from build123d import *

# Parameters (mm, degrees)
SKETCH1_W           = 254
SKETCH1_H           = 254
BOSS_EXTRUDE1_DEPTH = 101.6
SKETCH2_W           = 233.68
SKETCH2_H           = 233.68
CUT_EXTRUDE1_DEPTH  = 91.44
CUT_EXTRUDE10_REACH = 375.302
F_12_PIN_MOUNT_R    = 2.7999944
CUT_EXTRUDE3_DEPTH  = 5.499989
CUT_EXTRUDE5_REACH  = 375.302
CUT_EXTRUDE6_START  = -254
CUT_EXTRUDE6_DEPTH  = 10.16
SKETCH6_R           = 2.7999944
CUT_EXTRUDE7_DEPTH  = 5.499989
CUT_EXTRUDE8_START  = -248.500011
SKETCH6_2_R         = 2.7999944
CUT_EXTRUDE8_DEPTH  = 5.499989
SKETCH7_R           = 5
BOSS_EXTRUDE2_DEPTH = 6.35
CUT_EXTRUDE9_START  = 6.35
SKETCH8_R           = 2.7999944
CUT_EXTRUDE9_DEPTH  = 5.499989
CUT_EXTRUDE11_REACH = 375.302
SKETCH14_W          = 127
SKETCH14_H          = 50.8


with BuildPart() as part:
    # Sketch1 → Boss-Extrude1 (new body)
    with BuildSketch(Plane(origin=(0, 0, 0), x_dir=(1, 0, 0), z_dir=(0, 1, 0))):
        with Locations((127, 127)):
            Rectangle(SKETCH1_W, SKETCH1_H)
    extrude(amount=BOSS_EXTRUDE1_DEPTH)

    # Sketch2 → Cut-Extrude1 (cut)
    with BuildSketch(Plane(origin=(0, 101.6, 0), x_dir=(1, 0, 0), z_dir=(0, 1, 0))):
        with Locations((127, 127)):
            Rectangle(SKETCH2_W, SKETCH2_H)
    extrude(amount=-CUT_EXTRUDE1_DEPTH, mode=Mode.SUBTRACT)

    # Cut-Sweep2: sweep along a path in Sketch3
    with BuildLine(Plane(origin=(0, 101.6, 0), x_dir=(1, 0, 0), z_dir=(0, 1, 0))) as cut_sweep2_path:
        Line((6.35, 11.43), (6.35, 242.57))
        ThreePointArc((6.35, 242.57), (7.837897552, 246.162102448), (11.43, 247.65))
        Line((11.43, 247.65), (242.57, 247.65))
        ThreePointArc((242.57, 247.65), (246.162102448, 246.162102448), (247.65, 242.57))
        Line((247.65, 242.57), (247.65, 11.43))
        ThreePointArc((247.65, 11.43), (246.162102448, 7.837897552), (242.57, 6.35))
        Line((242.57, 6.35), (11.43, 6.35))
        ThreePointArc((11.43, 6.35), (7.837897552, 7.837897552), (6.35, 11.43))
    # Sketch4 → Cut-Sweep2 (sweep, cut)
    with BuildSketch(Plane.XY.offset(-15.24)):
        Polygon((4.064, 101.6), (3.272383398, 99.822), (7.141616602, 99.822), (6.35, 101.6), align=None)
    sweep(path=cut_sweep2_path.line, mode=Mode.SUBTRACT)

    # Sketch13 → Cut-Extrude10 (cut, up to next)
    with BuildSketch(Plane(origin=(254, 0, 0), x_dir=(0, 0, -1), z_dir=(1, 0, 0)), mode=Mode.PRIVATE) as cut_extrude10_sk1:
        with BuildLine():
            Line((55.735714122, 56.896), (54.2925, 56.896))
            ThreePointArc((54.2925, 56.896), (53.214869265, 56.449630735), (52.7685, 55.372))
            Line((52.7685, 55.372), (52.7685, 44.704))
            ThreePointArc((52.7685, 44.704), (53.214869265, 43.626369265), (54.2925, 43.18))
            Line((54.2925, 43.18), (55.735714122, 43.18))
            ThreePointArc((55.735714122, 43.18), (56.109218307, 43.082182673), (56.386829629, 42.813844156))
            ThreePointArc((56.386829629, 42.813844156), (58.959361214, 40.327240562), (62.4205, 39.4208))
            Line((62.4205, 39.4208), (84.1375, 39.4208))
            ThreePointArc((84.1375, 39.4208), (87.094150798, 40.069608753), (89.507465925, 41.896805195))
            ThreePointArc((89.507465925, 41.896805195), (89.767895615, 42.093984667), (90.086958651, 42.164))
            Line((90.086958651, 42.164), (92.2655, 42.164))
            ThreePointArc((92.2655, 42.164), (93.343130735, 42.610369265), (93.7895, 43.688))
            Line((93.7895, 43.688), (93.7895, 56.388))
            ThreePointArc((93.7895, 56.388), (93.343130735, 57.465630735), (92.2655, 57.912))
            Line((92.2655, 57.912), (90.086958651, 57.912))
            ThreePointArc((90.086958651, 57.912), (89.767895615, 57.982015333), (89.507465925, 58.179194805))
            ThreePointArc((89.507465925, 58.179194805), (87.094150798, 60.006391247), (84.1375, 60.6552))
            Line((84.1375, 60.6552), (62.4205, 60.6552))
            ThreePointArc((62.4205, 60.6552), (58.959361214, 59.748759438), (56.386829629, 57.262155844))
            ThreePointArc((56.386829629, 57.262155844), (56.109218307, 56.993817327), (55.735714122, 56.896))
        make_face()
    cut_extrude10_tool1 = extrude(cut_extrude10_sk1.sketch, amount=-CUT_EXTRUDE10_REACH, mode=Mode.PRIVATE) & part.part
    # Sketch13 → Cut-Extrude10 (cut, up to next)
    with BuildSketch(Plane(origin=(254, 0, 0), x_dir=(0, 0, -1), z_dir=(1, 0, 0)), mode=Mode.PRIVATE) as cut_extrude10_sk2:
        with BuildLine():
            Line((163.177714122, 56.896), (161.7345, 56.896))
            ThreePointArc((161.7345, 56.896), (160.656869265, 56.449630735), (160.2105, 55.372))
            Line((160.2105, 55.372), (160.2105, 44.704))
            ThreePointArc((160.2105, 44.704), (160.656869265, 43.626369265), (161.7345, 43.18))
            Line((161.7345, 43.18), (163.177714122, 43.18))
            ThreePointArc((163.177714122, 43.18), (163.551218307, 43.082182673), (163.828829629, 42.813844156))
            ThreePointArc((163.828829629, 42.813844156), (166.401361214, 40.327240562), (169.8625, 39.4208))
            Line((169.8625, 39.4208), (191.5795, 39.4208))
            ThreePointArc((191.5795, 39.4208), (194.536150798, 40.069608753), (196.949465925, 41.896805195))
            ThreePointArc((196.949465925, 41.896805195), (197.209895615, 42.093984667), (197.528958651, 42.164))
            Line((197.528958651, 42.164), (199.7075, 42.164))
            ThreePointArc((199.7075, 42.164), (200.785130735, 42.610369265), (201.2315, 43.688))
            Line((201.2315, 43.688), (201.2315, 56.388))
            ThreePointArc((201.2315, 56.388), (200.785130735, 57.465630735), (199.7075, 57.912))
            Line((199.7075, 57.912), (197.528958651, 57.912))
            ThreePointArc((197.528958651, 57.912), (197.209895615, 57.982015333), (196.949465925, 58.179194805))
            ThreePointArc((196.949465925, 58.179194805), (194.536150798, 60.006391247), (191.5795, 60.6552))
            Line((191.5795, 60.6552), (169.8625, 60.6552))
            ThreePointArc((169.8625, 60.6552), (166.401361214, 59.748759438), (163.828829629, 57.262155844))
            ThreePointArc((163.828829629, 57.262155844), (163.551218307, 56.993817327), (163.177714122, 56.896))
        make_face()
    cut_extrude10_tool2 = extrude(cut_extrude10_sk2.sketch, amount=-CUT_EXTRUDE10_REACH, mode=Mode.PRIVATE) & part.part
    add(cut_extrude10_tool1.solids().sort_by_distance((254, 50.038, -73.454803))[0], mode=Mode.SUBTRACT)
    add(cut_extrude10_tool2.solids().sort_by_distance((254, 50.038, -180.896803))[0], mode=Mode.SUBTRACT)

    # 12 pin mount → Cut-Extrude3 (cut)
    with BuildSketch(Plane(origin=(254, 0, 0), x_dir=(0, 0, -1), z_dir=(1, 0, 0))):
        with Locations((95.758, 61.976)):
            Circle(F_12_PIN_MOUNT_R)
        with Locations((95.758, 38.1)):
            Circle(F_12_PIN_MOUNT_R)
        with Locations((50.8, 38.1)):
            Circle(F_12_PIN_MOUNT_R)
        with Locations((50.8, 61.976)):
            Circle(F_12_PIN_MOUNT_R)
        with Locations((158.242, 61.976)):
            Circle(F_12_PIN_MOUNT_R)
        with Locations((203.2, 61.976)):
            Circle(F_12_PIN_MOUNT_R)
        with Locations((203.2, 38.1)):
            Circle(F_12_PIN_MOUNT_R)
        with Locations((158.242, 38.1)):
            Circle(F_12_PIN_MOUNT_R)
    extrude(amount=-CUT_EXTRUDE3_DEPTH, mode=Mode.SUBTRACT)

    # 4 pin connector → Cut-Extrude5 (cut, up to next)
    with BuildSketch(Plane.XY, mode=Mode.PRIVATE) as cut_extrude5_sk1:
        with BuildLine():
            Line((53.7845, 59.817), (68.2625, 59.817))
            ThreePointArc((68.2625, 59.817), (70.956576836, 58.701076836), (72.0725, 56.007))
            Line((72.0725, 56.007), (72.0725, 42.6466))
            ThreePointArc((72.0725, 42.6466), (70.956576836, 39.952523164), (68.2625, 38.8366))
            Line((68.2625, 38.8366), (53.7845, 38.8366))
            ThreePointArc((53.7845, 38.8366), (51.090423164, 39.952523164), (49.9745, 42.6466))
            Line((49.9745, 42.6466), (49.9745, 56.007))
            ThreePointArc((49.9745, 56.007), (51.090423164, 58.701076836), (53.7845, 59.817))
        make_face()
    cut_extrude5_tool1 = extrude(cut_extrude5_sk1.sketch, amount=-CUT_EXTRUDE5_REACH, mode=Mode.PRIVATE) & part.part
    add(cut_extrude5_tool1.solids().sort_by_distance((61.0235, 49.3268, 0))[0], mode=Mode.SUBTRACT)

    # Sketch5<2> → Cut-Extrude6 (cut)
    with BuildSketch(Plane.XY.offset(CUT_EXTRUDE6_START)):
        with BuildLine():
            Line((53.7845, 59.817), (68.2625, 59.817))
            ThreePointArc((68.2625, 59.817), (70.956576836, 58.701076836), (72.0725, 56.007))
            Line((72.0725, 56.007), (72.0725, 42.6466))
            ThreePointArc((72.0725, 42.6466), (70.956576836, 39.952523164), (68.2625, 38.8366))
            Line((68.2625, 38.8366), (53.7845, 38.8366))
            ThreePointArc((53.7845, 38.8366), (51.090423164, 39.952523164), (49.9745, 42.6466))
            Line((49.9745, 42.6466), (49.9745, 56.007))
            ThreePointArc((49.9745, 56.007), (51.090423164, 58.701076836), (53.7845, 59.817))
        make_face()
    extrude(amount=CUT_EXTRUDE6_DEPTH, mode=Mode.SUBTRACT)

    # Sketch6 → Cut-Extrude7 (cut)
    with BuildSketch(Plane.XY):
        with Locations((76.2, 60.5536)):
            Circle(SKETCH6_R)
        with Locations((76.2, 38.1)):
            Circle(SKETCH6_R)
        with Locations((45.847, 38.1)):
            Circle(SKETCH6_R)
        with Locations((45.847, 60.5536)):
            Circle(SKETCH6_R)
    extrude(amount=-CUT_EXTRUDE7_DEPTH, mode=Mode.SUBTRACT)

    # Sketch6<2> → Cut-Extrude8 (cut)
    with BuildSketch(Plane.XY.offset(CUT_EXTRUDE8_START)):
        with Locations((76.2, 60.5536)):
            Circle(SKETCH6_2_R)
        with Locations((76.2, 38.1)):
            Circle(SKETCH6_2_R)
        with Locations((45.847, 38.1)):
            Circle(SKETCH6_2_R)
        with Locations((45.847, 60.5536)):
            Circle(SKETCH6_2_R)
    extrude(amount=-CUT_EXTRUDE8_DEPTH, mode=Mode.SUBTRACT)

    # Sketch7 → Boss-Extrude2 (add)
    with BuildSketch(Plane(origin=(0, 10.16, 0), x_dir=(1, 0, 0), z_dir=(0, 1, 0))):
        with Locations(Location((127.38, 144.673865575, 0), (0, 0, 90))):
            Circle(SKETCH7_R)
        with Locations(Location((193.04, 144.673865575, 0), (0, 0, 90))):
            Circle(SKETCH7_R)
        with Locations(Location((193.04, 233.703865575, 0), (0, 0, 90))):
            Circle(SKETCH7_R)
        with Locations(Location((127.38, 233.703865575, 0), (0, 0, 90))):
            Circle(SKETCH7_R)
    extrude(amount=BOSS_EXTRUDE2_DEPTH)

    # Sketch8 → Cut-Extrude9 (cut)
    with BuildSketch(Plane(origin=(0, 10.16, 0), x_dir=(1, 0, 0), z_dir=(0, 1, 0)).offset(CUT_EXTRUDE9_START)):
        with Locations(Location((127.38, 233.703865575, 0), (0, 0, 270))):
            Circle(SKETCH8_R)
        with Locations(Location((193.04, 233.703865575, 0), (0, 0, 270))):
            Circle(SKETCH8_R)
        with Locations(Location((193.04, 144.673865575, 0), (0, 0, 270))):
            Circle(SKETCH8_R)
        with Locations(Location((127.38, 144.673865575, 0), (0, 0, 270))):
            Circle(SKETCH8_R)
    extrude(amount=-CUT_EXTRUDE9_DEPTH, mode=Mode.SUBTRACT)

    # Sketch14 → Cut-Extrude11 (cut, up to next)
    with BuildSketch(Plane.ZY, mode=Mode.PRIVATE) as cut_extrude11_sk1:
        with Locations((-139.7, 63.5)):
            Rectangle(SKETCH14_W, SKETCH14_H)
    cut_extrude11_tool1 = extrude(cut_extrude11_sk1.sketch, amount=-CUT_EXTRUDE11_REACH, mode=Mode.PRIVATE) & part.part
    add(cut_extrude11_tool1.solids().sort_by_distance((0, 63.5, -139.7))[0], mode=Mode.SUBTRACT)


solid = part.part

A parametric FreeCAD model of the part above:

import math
import FreeCAD as App
import Part
import Sketcher
from FreeCAD import Vector
Q = App.Units.Quantity


def add_polygon(sketch, points):
    """Adds a closed chain of lines whose ends are joined by coincident constraints."""
    first, n = sketch.GeometryCount, len(points)
    for a, b in zip(points, points[1:] + points[:1]):
        sketch.addGeometry(Part.LineSegment(App.Vector(*a, 0), App.Vector(*b, 0)), False)
    for i in range(n):
        sketch.addConstraint(Sketcher.Constraint("Coincident", first + i, 2, first + (i + 1) % n, 1))

doc = App.newDocument("Part")
body = doc.addObject("PartDesign::Body", "Body")

# Sketch on XZ plane
sketch1 = doc.addObject("Sketcher::SketchObject", "Sketch")
body.addObject(sketch1)
sketch1.AttachmentSupport = (doc.XZ_Plane, [""])
sketch1.MapMode = "FlatFace"
add_polygon(sketch1, [(0, -254), (0, 0), (254, 0), (254, -254)])  # lines 0-3
sketch1.addConstraint([
    Sketcher.Constraint("Vertical", 0),
    Sketcher.Constraint("Horizontal", 1),
    Sketcher.Constraint("Vertical", 2),
    Sketcher.Constraint("Horizontal", 3),
    Sketcher.Constraint("Coincident", 0, 2, -1, 1),
    Sketcher.Constraint("Equal", 3, 0),
    Sketcher.Constraint("DistanceX", 1, 1, 1, 2, Q("10 in")),
])
pad1 = doc.addObject("PartDesign::Pad", "Pad")
body.addObject(pad1)
pad1.Profile = sketch1
pad1.Length = Q("4 in")
pad1.Reversed = True

# Sketch on XZ plane
sketch2 = doc.addObject("Sketcher::SketchObject", "Sketch001")
body.addObject(sketch2)
sketch2.AttachmentSupport = (doc.XZ_Plane, [""])
sketch2.MapMode = "FlatFace"
sketch2.AttachmentOffset = App.Placement(Vector(0, 0, -4 * 25.4), App.Rotation())
add_polygon(sketch2, [(10, -244), (10, -10), (244, -10), (244, -244)])  # lines 0-3
sketch2.addConstraint([
    Sketcher.Constraint("Vertical", 0),
    Sketcher.Constraint("Horizontal", 1),
    Sketcher.Constraint("Vertical", 2),
    Sketcher.Constraint("Horizontal", 3),
    Sketcher.Constraint("Equal", 3, 0),
    Sketcher.Constraint("DistanceX", 1, 1, 1, 2, Q("9.2 in")),
    Sketcher.Constraint("DistanceX", -1, 1, 0, 2, Q("0.4 in")),
    Sketcher.Constraint("DistanceY", 0, 2, -1, 1, Q("0.4 in")),
])
pocket1 = doc.addObject("PartDesign::Pocket", "Pocket")
body.addObject(pocket1)
pocket1.Profile = sketch2
pocket1.Length = Q("3.6 in")
pocket1.Reversed = True

# Sketch on XY plane
sketch3 = doc.addObject("Sketcher::SketchObject", "Sketch002")
body.addObject(sketch3)
sketch3.AttachmentSupport = (doc.XY_Plane, [""])
sketch3.MapMode = "FlatFace"
sketch3.AttachmentOffset = App.Placement(Vector(0, 0, -0.6 * 25.4), App.Rotation())
add_polygon(sketch3, [(4.1, 101.6), (3.3, 99.8), (7.1, 99.8), (6.3, 101.6)])  # lines 0-3
sketch3.addConstraint([
    Sketcher.Constraint("Horizontal", 1),
    Sketcher.Constraint("Horizontal", 3),
    Sketcher.Constraint("Equal", 0, 2),
    Sketcher.Constraint("DistanceY", -1, 1, 2, 2, Q("4 in")),
    Sketcher.Constraint("Angle", 0, Q("-114 deg")),
    Sketcher.Constraint("DistanceX", 3, 2, 3, 1, Q("0.09 in")),
    Sketcher.Constraint("DistanceY", -1, 1, 0, 2, Q("3.93 in")),
    Sketcher.Constraint("DistanceX", -1, 1, 2, 2, Q("0.25 in")),
])

# Sketch on XZ plane
sketch4 = doc.addObject("Sketcher::SketchObject", "Sketch003")
body.addObject(sketch4)
sketch4.AttachmentSupport = (doc.XZ_Plane, [""])
sketch4.MapMode = "FlatFace"
sketch4.AttachmentOffset = App.Placement(Vector(0, 0, -4 * 25.4), App.Rotation())
sketch4.addGeometry([
    Part.LineSegment(Vector(6, -11, 0), Vector(6, -243, 0)),  # 0
    Part.ArcOfCircle(Part.Circle(Vector(11, -243, 0), Vector(0, 0, 1), 5), math.radians(-180), math.radians(-90)),  # 1
    Part.LineSegment(Vector(11, -248, 0), Vector(243, -248, 0)),  # 2
    Part.ArcOfCircle(Part.Circle(Vector(243, -243, 0), Vector(0, 0, 1), 5), math.radians(-90), math.radians(0)),  # 3
    Part.LineSegment(Vector(248, -243, 0), Vector(248, -11, 0)),  # 4
    Part.ArcOfCircle(Part.Circle(Vector(243, -11, 0), Vector(0, 0, 1), 5), math.radians(0), math.radians(90)),  # 5
    Part.LineSegment(Vector(243, -6, 0), Vector(11, -6, 0)),  # 6
    Part.ArcOfCircle(Part.Circle(Vector(11, -11, 0), Vector(0, 0, 1), 5), math.radians(90), math.radians(180)),  # 7
], False)
sketch4.addConstraint([
    Sketcher.Constraint("Tangent", 0, 2, 1, 1),
    Sketcher.Constraint("Tangent", 1, 2, 2, 1),
    Sketcher.Constraint("Tangent", 2, 2, 3, 1),
    Sketcher.Constraint("Tangent", 3, 2, 4, 1),
    Sketcher.Constraint("Tangent", 4, 2, 5, 1),
    Sketcher.Constraint("Tangent", 5, 2, 6, 1),
    Sketcher.Constraint("Tangent", 6, 2, 7, 1),
    Sketcher.Constraint("Tangent", 7, 2, 0, 1),
    Sketcher.Constraint("Vertical", 0),
    Sketcher.Constraint("Horizontal", 2),
    Sketcher.Constraint("Vertical", 4),
    Sketcher.Constraint("Horizontal", 6),
    Sketcher.Constraint("Equal", 1, 3),
    Sketcher.Constraint("Equal", 3, 5),
    Sketcher.Constraint("Equal", 5, 7),
    Sketcher.Constraint("Equal", 6, 0),
    Sketcher.Constraint("Radius", 1, Q("0.2 in")),
    Sketcher.Constraint("DistanceX", 2, 1, 2, 2, Q("9.1 in")),
    Sketcher.Constraint("DistanceX", -1, 1, 1, 3, Q("0.45 in")),
    Sketcher.Constraint("DistanceY", 1, 3, -1, 1, Q("9.55 in")),
])
doc.recompute()

subtractivepipe = doc.addObject("PartDesign::SubtractivePipe", "SubtractivePipe")
body.addObject(subtractivepipe)
subtractivepipe.Profile = sketch3
subtractivepipe.Spine = (sketch4, ["Edge1", "Edge2", "Edge3", "Edge4", "Edge5", "Edge6", "Edge7", "Edge8"])

# Sketch on YZ plane
sketch5 = doc.addObject("Sketcher::SketchObject", "Sketch004")
body.addObject(sketch5)
sketch5.AttachmentSupport = (doc.YZ_Plane, [""])
sketch5.MapMode = "FlatFace"
sketch5.AttachmentOffset = App.Placement(Vector(0, 0, 10 * 25.4), App.Rotation())
sketch5.addGeometry([
    Part.LineSegment(Vector(56.9, -55.7, 0), Vector(56.9, -54.3, 0)),  # 0
    Part.ArcOfCircle(Part.Circle(Vector(55.4, -54.3, 0), Vector(0, 0, 1), 1.5), math.radians(0), math.radians(90)),  # 1
    Part.LineSegment(Vector(55.4, -52.8, 0), Vector(44.7, -52.8, 0)),  # 2
    Part.ArcOfCircle(Part.Circle(Vector(44.7, -54.3, 0), Vector(0, 0, 1), 1.5), math.radians(90), math.radians(180)),  # 3
    Part.LineSegment(Vector(43.2, -54.3, 0), Vector(43.2, -55.7, 0)),  # 4
    Part.ArcOfCircle(Part.Circle(Vector(42.4, -55.7, 0), Vector(0, 0, 1), 0.8), math.radians(-59), math.radians(0)),  # 5
    Part.ArcOfCircle(Part.Circle(Vector(46.5, -62.4, 0), Vector(0, 0, 1), 7.1), math.radians(121), math.radians(180)),  # 6
    Part.LineSegment(Vector(39.4, -62.4, 0), Vector(39.4, -84.1, 0)),  # 7
    Part.ArcOfCircle(Part.Circle(Vector(46.5, -84.1, 0), Vector(0, 0, 1), 7.1), math.radians(180), math.radians(230)),  # 8
    Part.ArcOfCircle(Part.Circle(Vector(41.4, -90.1, 0), Vector(0, 0, 1), 0.8), math.radians(0), math.radians(50)),  # 9
    Part.LineSegment(Vector(42.2, -90.1, 0), Vector(42.2, -92.3, 0)),  # 10
    Part.ArcOfCircle(Part.Circle(Vector(43.7, -92.3, 0), Vector(0, 0, 1), 1.5), math.radians(180), math.radians(270)),  # 11
    Part.LineSegment(Vector(43.7, -93.8, 0), Vector(56.4, -93.8, 0)),  # 12
    Part.ArcOfCircle(Part.Circle(Vector(56.4, -92.3, 0), Vector(0, 0, 1), 1.5), math.radians(-90), math.radians(0)),  # 13
    Part.LineSegment(Vector(57.9, -92.3, 0), Vector(57.9, -90.1, 0)),  # 14
    Part.ArcOfCircle(Part.Circle(Vector(58.7, -90.1, 0), Vector(0, 0, 1), 0.8), math.radians(130), math.radians(180)),  # 15
    Part.ArcOfCircle(Part.Circle(Vector(53.6, -84.1, 0), Vector(0, 0, 1), 7.1), math.radians(-50), math.radians(0)),  # 16
    Part.LineSegment(Vector(60.7, -84.1, 0), Vector(60.7, -62.4, 0)),  # 17
    Part.ArcOfCircle(Part.Circle(Vector(53.6, -62.4, 0), Vector(0, 0, 1), 7.1), math.radians(0), math.radians(59)),  # 18
    Part.ArcOfCircle(Part.Circle(Vector(57.7, -55.7, 0), Vector(0, 0, 1), 0.8), math.radians(-180), math.radians(-121)),  # 19
], False)
sketch5.addConstraint([
    Sketcher.Constraint("Tangent", 0, 2, 1, 1),
    Sketcher.Constraint("Tangent", 1, 2, 2, 1),
    Sketcher.Constraint("Tangent", 2, 2, 3, 1),
    Sketcher.Constraint("Tangent", 3, 2, 4, 1),
    Sketcher.Constraint("Tangent", 4, 2, 5, 2),
    Sketcher.Constraint("Tangent", 5, 1, 6, 1),
    Sketcher.Constraint("Tangent", 6, 2, 7, 1),
    Sketcher.Constraint("Tangent", 7, 2, 8, 1),
    Sketcher.Constraint("Tangent", 8, 2, 9, 2),
    Sketcher.Constraint("Tangent", 9, 1, 10, 1),
    Sketcher.Constraint("Tangent", 10, 2, 11, 1),
    Sketcher.Constraint("Tangent", 11, 2, 12, 1),
    Sketcher.Constraint("Tangent", 12, 2, 13, 1),
    Sketcher.Constraint("Tangent", 13, 2, 14, 1),
    Sketcher.Constraint("Tangent", 14, 2, 15, 2),
    Sketcher.Constraint("Tangent", 15, 1, 16, 1),
    Sketcher.Constraint("Tangent", 16, 2, 17, 1),
    Sketcher.Constraint("Tangent", 17, 2, 18, 1),
    Sketcher.Constraint("Tangent", 18, 2, 19, 2),
    Sketcher.Constraint("Tangent", 19, 1, 0, 1),
    Sketcher.Constraint("Vertical", 0),
    Sketcher.Constraint("Horizontal", 2),
    Sketcher.Constraint("Vertical", 4),
    Sketcher.Constraint("Vertical", 7),
    Sketcher.Constraint("Vertical", 10),
    Sketcher.Constraint("Horizontal", 12),
    Sketcher.Constraint("Vertical", 14),
    Sketcher.Constraint("Vertical", 17),
    Sketcher.Constraint("Equal", 1, 3),
    Sketcher.Constraint("Equal", 6, 8),
    Sketcher.Constraint("Equal", 5, 9),
    Sketcher.Constraint("Equal", 3, 11),
    Sketcher.Constraint("Equal", 11, 13),
    Sketcher.Constraint("Equal", 9, 15),
    Sketcher.Constraint("Equal", 8, 16),
    Sketcher.Constraint("Equal", 16, 18),
    Sketcher.Constraint("Equal", 15, 19),
    Sketcher.Constraint("Horizontal", 9, 3, 15, 3),
    Sketcher.Constraint("Horizontal", 8, 3, 16, 3),
    Sketcher.Constraint("Horizontal", 6, 3, 18, 3),
    Sketcher.Constraint("Horizontal", 5, 3, 19, 3),
    Sketcher.Constraint("Radius", 1, Q("0.06 in")),
    Sketcher.Constraint("Radius", 5, Q("0.03 in")),
    Sketcher.Constraint("DistanceX", 12, 1, 12, 2, Q("0.5 in")),
    Sketcher.Constraint("Radius", 6, Q("0.278 in")),
    Sketcher.Constraint("DistanceX", 2, 2, 2, 1, Q("0.42 in")),
    Sketcher.Constraint("DistanceX", -1, 1, 3, 2, Q("1.7 in")),
    Sketcher.Constraint("DistanceX", 9, 3, 8, 3, Q("0.2 in")),
    Sketcher.Constraint("DistanceY", 7, 2, 7, 1, Q("0.855 in")),
    Sketcher.Constraint("DistanceY", 6, 3, 3, 3, Q("0.32 in")),
    Sketcher.Constraint("DistanceY", 11, 3, 8, 3, Q("0.32 in")),
    Sketcher.Constraint("DistanceY", 8, 3, -1, 1, Q("3.3125 in")),
])
pocket2 = doc.addObject("PartDesign::Pocket", "Pocket001")
body.addObject(pocket2)
pocket2.Profile = sketch5
pocket2.Type = "UpToFirst"

# Sketch on YZ plane
sketch6 = doc.addObject("Sketcher::SketchObject", "Sketch005")
body.addObject(sketch6)
sketch6.AttachmentSupport = (doc.YZ_Plane, [""])
sketch6.MapMode = "FlatFace"
sketch6.AttachmentOffset = App.Placement(Vector(0, 0, 10 * 25.4), App.Rotation())
sketch6.addGeometry([
    Part.LineSegment(Vector(56.9, -163.2, 0), Vector(56.9, -161.7, 0)),  # 0
    Part.ArcOfCircle(Part.Circle(Vector(55.4, -161.7, 0), Vector(0, 0, 1), 1.5), math.radians(0), math.radians(90)),  # 1
    Part.LineSegment(Vector(55.4, -160.2, 0), Vector(44.7, -160.2, 0)),  # 2
    Part.ArcOfCircle(Part.Circle(Vector(44.7, -161.7, 0), Vector(0, 0, 1), 1.5), math.radians(90), math.radians(180)),  # 3
    Part.LineSegment(Vector(43.2, -161.7, 0), Vector(43.2, -163.2, 0)),  # 4
    Part.ArcOfCircle(Part.Circle(Vector(42.4, -163.2, 0), Vector(0, 0, 1), 0.8), math.radians(-59), math.radians(0)),  # 5
    Part.ArcOfCircle(Part.Circle(Vector(46.5, -169.9, 0), Vector(0, 0, 1), 7.1), math.radians(121), math.radians(180)),  # 6
    Part.LineSegment(Vector(39.4, -169.9, 0), Vector(39.4, -191.6, 0)),  # 7
    Part.ArcOfCircle(Part.Circle(Vector(46.5, -191.6, 0), Vector(0, 0, 1), 7.1), math.radians(180), math.radians(230)),  # 8
    Part.ArcOfCircle(Part.Circle(Vector(41.4, -197.5, 0), Vector(0, 0, 1), 0.8), math.radians(0), math.radians(50)),  # 9
    Part.LineSegment(Vector(42.2, -197.5, 0), Vector(42.2, -199.7, 0)),  # 10
    Part.ArcOfCircle(Part.Circle(Vector(43.7, -199.7, 0), Vector(0, 0, 1), 1.5), math.radians(180), math.radians(270)),  # 11
    Part.LineSegment(Vector(43.7, -201.2, 0), Vector(56.4, -201.2, 0)),  # 12
    Part.ArcOfCircle(Part.Circle(Vector(56.4, -199.7, 0), Vector(0, 0, 1), 1.5), math.radians(-90), math.radians(0)),  # 13
    Part.LineSegment(Vector(57.9, -199.7, 0), Vector(57.9, -197.5, 0)),  # 14
    Part.ArcOfCircle(Part.Circle(Vector(58.7, -197.5, 0), Vector(0, 0, 1), 0.8), math.radians(130), math.radians(180)),  # 15
    Part.ArcOfCircle(Part.Circle(Vector(53.6, -191.6, 0), Vector(0, 0, 1), 7.1), math.radians(-50), math.radians(0)),  # 16
    Part.LineSegment(Vector(60.7, -191.6, 0), Vector(60.7, -169.9, 0)),  # 17
    Part.ArcOfCircle(Part.Circle(Vector(53.6, -169.9, 0), Vector(0, 0, 1), 7.1), math.radians(0), math.radians(59)),  # 18
    Part.ArcOfCircle(Part.Circle(Vector(57.7, -163.2, 0), Vector(0, 0, 1), 0.8), math.radians(-180), math.radians(-121)),  # 19
], False)
sketch6.addConstraint([
    Sketcher.Constraint("Tangent", 0, 2, 1, 1),
    Sketcher.Constraint("Tangent", 1, 2, 2, 1),
    Sketcher.Constraint("Tangent", 2, 2, 3, 1),
    Sketcher.Constraint("Tangent", 3, 2, 4, 1),
    Sketcher.Constraint("Tangent", 4, 2, 5, 2),
    Sketcher.Constraint("Tangent", 5, 1, 6, 1),
    Sketcher.Constraint("Tangent", 6, 2, 7, 1),
    Sketcher.Constraint("Tangent", 7, 2, 8, 1),
    Sketcher.Constraint("Tangent", 8, 2, 9, 2),
    Sketcher.Constraint("Tangent", 9, 1, 10, 1),
    Sketcher.Constraint("Tangent", 10, 2, 11, 1),
    Sketcher.Constraint("Tangent", 11, 2, 12, 1),
    Sketcher.Constraint("Tangent", 12, 2, 13, 1),
    Sketcher.Constraint("Tangent", 13, 2, 14, 1),
    Sketcher.Constraint("Tangent", 14, 2, 15, 2),
    Sketcher.Constraint("Tangent", 15, 1, 16, 1),
    Sketcher.Constraint("Tangent", 16, 2, 17, 1),
    Sketcher.Constraint("Tangent", 17, 2, 18, 1),
    Sketcher.Constraint("Tangent", 18, 2, 19, 2),
    Sketcher.Constraint("Tangent", 19, 1, 0, 1),
    Sketcher.Constraint("Vertical", 0),
    Sketcher.Constraint("Horizontal", 2),
    Sketcher.Constraint("Vertical", 4),
    Sketcher.Constraint("Vertical", 7),
    Sketcher.Constraint("Vertical", 10),
    Sketcher.Constraint("Horizontal", 12),
    Sketcher.Constraint("Vertical", 14),
    Sketcher.Constraint("Vertical", 17),
    Sketcher.Constraint("Equal", 1, 3),
    Sketcher.Constraint("Equal", 6, 8),
    Sketcher.Constraint("Equal", 5, 9),
    Sketcher.Constraint("Equal", 3, 11),
    Sketcher.Constraint("Equal", 11, 13),
    Sketcher.Constraint("Equal", 9, 15),
    Sketcher.Constraint("Equal", 8, 16),
    Sketcher.Constraint("Equal", 16, 18),
    Sketcher.Constraint("Equal", 15, 19),
    Sketcher.Constraint("Horizontal", 9, 3, 15, 3),
    Sketcher.Constraint("Horizontal", 8, 3, 16, 3),
    Sketcher.Constraint("Horizontal", 6, 3, 18, 3),
    Sketcher.Constraint("Horizontal", 5, 3, 19, 3),
    Sketcher.Constraint("Radius", 1, Q("0.06 in")),
    Sketcher.Constraint("Radius", 5, Q("0.03 in")),
    Sketcher.Constraint("DistanceX", 12, 1, 12, 2, Q("0.5 in")),
    Sketcher.Constraint("Radius", 6, Q("0.278 in")),
    Sketcher.Constraint("DistanceX", 2, 2, 2, 1, Q("0.42 in")),
    Sketcher.Constraint("DistanceX", -1, 1, 3, 2, Q("1.7 in")),
    Sketcher.Constraint("DistanceX", 9, 3, 8, 3, Q("0.2 in")),
    Sketcher.Constraint("DistanceY", 7, 2, 7, 1, Q("0.855 in")),
    Sketcher.Constraint("DistanceY", 6, 3, 3, 3, Q("0.32 in")),
    Sketcher.Constraint("DistanceY", 11, 3, 8, 3, Q("0.32 in")),
    Sketcher.Constraint("DistanceY", 6, 3, -1, 1, Q("6.6875 in")),
])
pocket3 = doc.addObject("PartDesign::Pocket", "Pocket002")
body.addObject(pocket3)
pocket3.Profile = sketch6
pocket3.Type = "UpToFirst"

# Sketch on YZ plane
sketch7 = doc.addObject("Sketcher::SketchObject", "Sketch006")
body.addObject(sketch7)
sketch7.AttachmentSupport = (doc.YZ_Plane, [""])
sketch7.MapMode = "FlatFace"
sketch7.AttachmentOffset = App.Placement(Vector(0, 0, 10 * 25.4), App.Rotation())
sketch7.addGeometry([
    Part.Circle(Vector(62, -95.8, 0), Vector(0, 0, 1), 2.8),  # 0
    Part.Circle(Vector(38.1, -95.8, 0), Vector(0, 0, 1), 2.8),  # 1
    Part.Circle(Vector(38.1, -50.8, 0), Vector(0, 0, 1), 2.8),  # 2
    Part.Circle(Vector(62, -50.8, 0), Vector(0, 0, 1), 2.8),  # 3
    Part.Circle(Vector(62, -158.2, 0), Vector(0, 0, 1), 2.8),  # 4
    Part.Circle(Vector(62, -203.2, 0), Vector(0, 0, 1), 2.8),  # 5
    Part.Circle(Vector(38.1, -203.2, 0), Vector(0, 0, 1), 2.8),  # 6
    Part.Circle(Vector(38.1, -158.2, 0), Vector(0, 0, 1), 2.8),  # 7
], False)
sketch7.addConstraint([
    Sketcher.Constraint("Equal", 0, 1),
    Sketcher.Constraint("Equal", 1, 2),
    Sketcher.Constraint("Equal", 2, 3),
    Sketcher.Constraint("Equal", 3, 4),
    Sketcher.Constraint("Equal", 4, 5),
    Sketcher.Constraint("Equal", 5, 6),
    Sketcher.Constraint("Equal", 6, 7),
    Sketcher.Constraint("Horizontal", 0, 3, 1, 3),
    Sketcher.Constraint("Horizontal", 2, 3, 3, 3),
    Sketcher.Constraint("Horizontal", 5, 3, 6, 3),
    Sketcher.Constraint("Horizontal", 4, 3, 7, 3),
    Sketcher.Constraint("Vertical", 1, 3, 2, 3),
    Sketcher.Constraint("Vertical", 0, 3, 3, 3),
    Sketcher.Constraint("Vertical", 3, 3, 4, 3),
    Sketcher.Constraint("Vertical", 4, 3, 5, 3),
    Sketcher.Constraint("Vertical", 2, 3, 6, 3),
    Sketcher.Constraint("Vertical", 6, 3, 7, 3),
    Sketcher.Constraint("DistanceY", 2, 3, -1, 1, Q("2 in")),
    Sketcher.Constraint("DistanceY", 5, 3, -1, 1, Q("8 in")),
    Sketcher.Constraint("DistanceX", -1, 1, 1, 3, Q("1.5 in")),
    Sketcher.Constraint("DistanceX", -1, 1, 0, 3, Q("2.44 in")),
    Sketcher.Constraint("DistanceY", 0, 3, -1, 1, Q("3.77 in")),
    Sketcher.Constraint("DistanceY", 4, 3, -1, 1, Q("6.23 in")),
    Sketcher.Constraint("Diameter", 0, Q("5.599989 mm")),
])
pocket4 = doc.addObject("PartDesign::Pocket", "Pocket003")
body.addObject(pocket4)
pocket4.Profile = sketch7
pocket4.Length = 5.499989

# Sketch on XY plane
sketch8 = doc.addObject("Sketcher::SketchObject", "Sketch007")
body.addObject(sketch8)
sketch8.AttachmentSupport = (doc.XY_Plane, [""])
sketch8.MapMode = "FlatFace"
sketch8.addGeometry([
    Part.LineSegment(Vector(68.3, 59.8, 0), Vector(53.8, 59.8, 0)),  # 0
    Part.ArcOfCircle(Part.Circle(Vector(53.8, 56, 0), Vector(0, 0, 1), 3.8), math.radians(90), math.radians(180)),  # 1
    Part.LineSegment(Vector(50, 56, 0), Vector(50, 42.6, 0)),  # 2
    Part.ArcOfCircle(Part.Circle(Vector(53.8, 42.6, 0), Vector(0, 0, 1), 3.8), math.radians(-180), math.radians(-90)),  # 3
    Part.LineSegment(Vector(53.8, 38.8, 0), Vector(68.3, 38.8, 0)),  # 4
    Part.ArcOfCircle(Part.Circle(Vector(68.3, 42.6, 0), Vector(0, 0, 1), 3.8), math.radians(-90), math.radians(0)),  # 5
    Part.LineSegment(Vector(72.1, 42.6, 0), Vector(72.1, 56, 0)),  # 6
    Part.ArcOfCircle(Part.Circle(Vector(68.3, 56, 0), Vector(0, 0, 1), 3.8), math.radians(0), math.radians(90)),  # 7
], False)
sketch8.addConstraint([
    Sketcher.Constraint("Tangent", 0, 2, 1, 1),
    Sketcher.Constraint("Tangent", 1, 2, 2, 1),
    Sketcher.Constraint("Tangent", 2, 2, 3, 1),
    Sketcher.Constraint("Tangent", 3, 2, 4, 1),
    Sketcher.Constraint("Tangent", 4, 2, 5, 1),
    Sketcher.Constraint("Tangent", 5, 2, 6, 1),
    Sketcher.Constraint("Tangent", 6, 2, 7, 1),
    Sketcher.Constraint("Tangent", 7, 2, 0, 1),
    Sketcher.Constraint("Horizontal", 0),
    Sketcher.Constraint("Vertical", 2),
    Sketcher.Constraint("Horizontal", 4),
    Sketcher.Constraint("Vertical", 6),
    Sketcher.Constraint("Equal", 1, 3),
    Sketcher.Constraint("Equal", 3, 5),
    Sketcher.Constraint("Equal", 5, 7),
    Sketcher.Constraint("Radius", 1, Q("0.15 in")),
    Sketcher.Constraint("DistanceX", 0, 2, 0, 1, Q("0.57 in")),
    Sketcher.Constraint("DistanceY", 2, 2, 2, 1, Q("0.526 in")),
    Sketcher.Constraint("DistanceY", -1, 1, 1, 3, Q("2.205 in")),
    Sketcher.Constraint("DistanceX", -1, 1, 5, 3, Q("2.6875 in")),
])
pocket5 = doc.addObject("PartDesign::Pocket", "Pocket004")
body.addObject(pocket5)
pocket5.Profile = sketch8
pocket5.Type = "UpToFirst"

# Sketch on XY plane
sketch9 = doc.addObject("Sketcher::SketchObject", "Sketch008")
body.addObject(sketch9)
sketch9.AttachmentSupport = (doc.XY_Plane, [""])
sketch9.MapMode = "FlatFace"
sketch9.AttachmentOffset = App.Placement(Vector(0, 0, -10 * 25.4), App.Rotation())
sketch9.addGeometry([
    Part.LineSegment(Vector(68.3, 59.8, 0), Vector(53.8, 59.8, 0)),  # 0
    Part.ArcOfCircle(Part.Circle(Vector(53.8, 56, 0), Vector(0, 0, 1), 3.8), math.radians(90), math.radians(180)),  # 1
    Part.LineSegment(Vector(50, 56, 0), Vector(50, 42.6, 0)),  # 2
    Part.ArcOfCircle(Part.Circle(Vector(53.8, 42.6, 0), Vector(0, 0, 1), 3.8), math.radians(-180), math.radians(-90)),  # 3
    Part.LineSegment(Vector(53.8, 38.8, 0), Vector(68.3, 38.8, 0)),  # 4
    Part.ArcOfCircle(Part.Circle(Vector(68.3, 42.6, 0), Vector(0, 0, 1), 3.8), math.radians(-90), math.radians(0)),  # 5
    Part.LineSegment(Vector(72.1, 42.6, 0), Vector(72.1, 56, 0)),  # 6
    Part.ArcOfCircle(Part.Circle(Vector(68.3, 56, 0), Vector(0, 0, 1), 3.8), math.radians(0), math.radians(90)),  # 7
], False)
sketch9.addConstraint([
    Sketcher.Constraint("Tangent", 0, 2, 1, 1),
    Sketcher.Constraint("Tangent", 1, 2, 2, 1),
    Sketcher.Constraint("Tangent", 2, 2, 3, 1),
    Sketcher.Constraint("Tangent", 3, 2, 4, 1),
    Sketcher.Constraint("Tangent", 4, 2, 5, 1),
    Sketcher.Constraint("Tangent", 5, 2, 6, 1),
    Sketcher.Constraint("Tangent", 6, 2, 7, 1),
    Sketcher.Constraint("Tangent", 7, 2, 0, 1),
    Sketcher.Constraint("Horizontal", 0),
    Sketcher.Constraint("Vertical", 2),
    Sketcher.Constraint("Horizontal", 4),
    Sketcher.Constraint("Vertical", 6),
    Sketcher.Constraint("Equal", 1, 3),
    Sketcher.Constraint("Equal", 3, 5),
    Sketcher.Constraint("Equal", 5, 7),
    Sketcher.Constraint("Radius", 1, Q("0.15 in")),
    Sketcher.Constraint("DistanceX", 0, 2, 0, 1, Q("0.57 in")),
    Sketcher.Constraint("DistanceY", 2, 2, 2, 1, Q("0.526 in")),
    Sketcher.Constraint("DistanceY", -1, 1, 1, 3, Q("2.205 in")),
    Sketcher.Constraint("DistanceX", -1, 1, 5, 3, Q("2.6875 in")),
])
pocket6 = doc.addObject("PartDesign::Pocket", "Pocket005")
body.addObject(pocket6)
pocket6.Profile = sketch9
pocket6.Length = Q("0.4 in")
pocket6.Reversed = True

# Sketch on XY plane
sketch10 = doc.addObject("Sketcher::SketchObject", "Sketch009")
body.addObject(sketch10)
sketch10.AttachmentSupport = (doc.XY_Plane, [""])
sketch10.MapMode = "FlatFace"
sketch10.addGeometry([
    Part.Circle(Vector(76.2, 60.6, 0), Vector(0, 0, 1), 2.8),
    Part.Circle(Vector(76.2, 38.1, 0), Vector(0, 0, 1), 2.8),
    Part.Circle(Vector(45.8, 38.1, 0), Vector(0, 0, 1), 2.8),
    Part.Circle(Vector(45.8, 60.6, 0), Vector(0, 0, 1), 2.8),
], False)
sketch10.addConstraint([
    Sketcher.Constraint("Equal", 0, 1),
    Sketcher.Constraint("Equal", 1, 2),
    Sketcher.Constraint("Equal", 2, 3),
    Sketcher.Constraint("Horizontal", 1, 3, 2, 3),
    Sketcher.Constraint("Horizontal", 0, 3, 3, 3),
    Sketcher.Constraint("Vertical", 0, 3, 1, 3),
    Sketcher.Constraint("Vertical", 2, 3, 3, 3),
    Sketcher.Constraint("DistanceX", -1, 1, 0, 3, Q("3 in")),
    Sketcher.Constraint("DistanceY", -1, 1, 1, 3, Q("1.5 in")),
    Sketcher.Constraint("Diameter", 0, Q("5.599989 mm")),
    Sketcher.Constraint("DistanceY", -1, 1, 0, 3, Q("2.384 in")),
    Sketcher.Constraint("DistanceX", -1, 1, 2, 3, Q("1.805 in")),
])
pocket7 = doc.addObject("PartDesign::Pocket", "Pocket006")
body.addObject(pocket7)
pocket7.Profile = sketch10
pocket7.Length = 5.499989

# Sketch on XY plane
sketch11 = doc.addObject("Sketcher::SketchObject", "Sketch010")
body.addObject(sketch11)
sketch11.AttachmentSupport = (doc.XY_Plane, [""])
sketch11.MapMode = "FlatFace"
sketch11.AttachmentOffset = App.Placement(Vector(0, 0, -248.500011), App.Rotation())
sketch11.addGeometry([
    Part.Circle(Vector(76.2, 60.6, 0), Vector(0, 0, 1), 2.8),
    Part.Circle(Vector(76.2, 38.1, 0), Vector(0, 0, 1), 2.8),
    Part.Circle(Vector(45.8, 38.1, 0), Vector(0, 0, 1), 2.8),
    Part.Circle(Vector(45.8, 60.6, 0), Vector(0, 0, 1), 2.8),
], False)
sketch11.addConstraint([
    Sketcher.Constraint("Equal", 0, 1),
    Sketcher.Constraint("Equal", 1, 2),
    Sketcher.Constraint("Equal", 2, 3),
    Sketcher.Constraint("Horizontal", 1, 3, 2, 3),
    Sketcher.Constraint("Horizontal", 0, 3, 3, 3),
    Sketcher.Constraint("Vertical", 0, 3, 1, 3),
    Sketcher.Constraint("Vertical", 2, 3, 3, 3),
    Sketcher.Constraint("DistanceX", -1, 1, 0, 3, Q("3 in")),
    Sketcher.Constraint("DistanceY", -1, 1, 1, 3, Q("1.5 in")),
    Sketcher.Constraint("Diameter", 0, Q("5.599989 mm")),
    Sketcher.Constraint("DistanceY", -1, 1, 0, 3, Q("2.384 in")),
    Sketcher.Constraint("DistanceX", -1, 1, 2, 3, Q("1.805 in")),
])
pocket8 = doc.addObject("PartDesign::Pocket", "Pocket007")
body.addObject(pocket8)
pocket8.Profile = sketch11
pocket8.Length = 5.499989

# Sketch on XZ plane
sketch12 = doc.addObject("Sketcher::SketchObject", "Sketch011")
body.addObject(sketch12)
sketch12.AttachmentSupport = (doc.XZ_Plane, [""])
sketch12.MapMode = "FlatFace"
sketch12.AttachmentOffset = App.Placement(Vector(0, 0, -0.4 * 25.4), App.Rotation())
sketch12.addGeometry([
    Part.Circle(Vector(127, -145, 0), Vector(0, 0, 1), 5),
    Part.Circle(Vector(193, -145, 0), Vector(0, 0, 1), 5),
    Part.Circle(Vector(193, -234, 0), Vector(0, 0, 1), 5),
    Part.Circle(Vector(127, -234, 0), Vector(0, 0, 1), 5),
], False)
sketch12.addConstraint([
    Sketcher.Constraint("Equal", 0, 1),
    Sketcher.Constraint("Equal", 1, 2),
    Sketcher.Constraint("Equal", 2, 3),
    Sketcher.Constraint("Horizontal", 0, 3, 1, 3),
    Sketcher.Constraint("Horizontal", 2, 3, 3, 3),
    Sketcher.Constraint("Vertical", 1, 3, 2, 3),
    Sketcher.Constraint("Vertical", 0, 3, 3, 3),
    Sketcher.Constraint("DistanceX", -1, 1, 1, 3, Q("7.6 in")),
    Sketcher.Constraint("Diameter", 0, Q("10 mm")),
    Sketcher.Constraint("DistanceX", -1, 1, 0, 3, Q("127.38 mm")),
    Sketcher.Constraint("DistanceY", 2, 3, 1, 3, Q("89.03 mm")),
    Sketcher.Constraint("DistanceY", 0, 3, -1, 1, Q("144.673866 mm")),
])
pad2 = doc.addObject("PartDesign::Pad", "Pad001")
body.addObject(pad2)
pad2.Profile = sketch12
pad2.Length = Q("0.25 in")
pad2.Reversed = True

# Sketch on XZ plane
sketch13 = doc.addObject("Sketcher::SketchObject", "Sketch012")
body.addObject(sketch13)
sketch13.AttachmentSupport = (doc.XZ_Plane, [""])
sketch13.MapMode = "FlatFace"
sketch13.AttachmentOffset = App.Placement(Vector(0, 0, -0.65 * 25.4), App.Rotation())
sketch13.addGeometry([
    Part.Circle(Vector(127.4, -233.7, 0), Vector(0, 0, 1), 2.8),
    Part.Circle(Vector(193, -233.7, 0), Vector(0, 0, 1), 2.8),
    Part.Circle(Vector(193, -144.7, 0), Vector(0, 0, 1), 2.8),
    Part.Circle(Vector(127.4, -144.7, 0), Vector(0, 0, 1), 2.8),
], False)
sketch13.addConstraint([
    Sketcher.Constraint("Equal", 0, 1),
    Sketcher.Constraint("Equal", 1, 2),
    Sketcher.Constraint("Equal", 2, 3),
    Sketcher.Constraint("Horizontal", 0, 3, 1, 3),
    Sketcher.Constraint("Horizontal", 2, 3, 3, 3),
    Sketcher.Constraint("Vertical", 1, 3, 2, 3),
    Sketcher.Constraint("Vertical", 0, 3, 3, 3),
    Sketcher.Constraint("DistanceX", -1, 1, 1, 3, Q("7.6 in")),
    Sketcher.Constraint("Diameter", 0, Q("5.599989 mm")),
    Sketcher.Constraint("DistanceX", -1, 1, 0, 3, Q("127.38 mm")),
    Sketcher.Constraint("DistanceY", 1, 3, 2, 3, Q("89.03 mm")),
    Sketcher.Constraint("DistanceY", 0, 3, -1, 1, Q("233.703866 mm")),
])
pocket9 = doc.addObject("PartDesign::Pocket", "Pocket008")
body.addObject(pocket9)
pocket9.Profile = sketch13
pocket9.Length = 5.499989
pocket9.Reversed = True

# Sketch on YZ plane
sketch14 = doc.addObject("Sketcher::SketchObject", "Sketch013")
body.addObject(sketch14)
sketch14.AttachmentSupport = (doc.YZ_Plane, [""])
sketch14.MapMode = "FlatFace"
add_polygon(sketch14, [(89, -203), (38, -203), (38, -76), (89, -76)])  # lines 0-3
sketch14.addConstraint([
    Sketcher.Constraint("Horizontal", 0),
    Sketcher.Constraint("Vertical", 1),
    Sketcher.Constraint("Horizontal", 2),
    Sketcher.Constraint("Vertical", 3),
    Sketcher.Constraint("DistanceX", 0, 2, 0, 1, Q("2 in")),
    Sketcher.Constraint("DistanceY", 1, 1, 1, 2, Q("5 in")),
    Sketcher.Constraint("DistanceY", 0, 2, -1, 1, Q("8 in")),
    Sketcher.Constraint("DistanceX", -1, 1, 0, 2, Q("1.5 in")),
])
pocket10 = doc.addObject("PartDesign::Pocket", "Pocket009")
body.addObject(pocket10)
pocket10.Profile = sketch14
pocket10.Type = "UpToFirst"
pocket10.Reversed = True

doc.recompute()
